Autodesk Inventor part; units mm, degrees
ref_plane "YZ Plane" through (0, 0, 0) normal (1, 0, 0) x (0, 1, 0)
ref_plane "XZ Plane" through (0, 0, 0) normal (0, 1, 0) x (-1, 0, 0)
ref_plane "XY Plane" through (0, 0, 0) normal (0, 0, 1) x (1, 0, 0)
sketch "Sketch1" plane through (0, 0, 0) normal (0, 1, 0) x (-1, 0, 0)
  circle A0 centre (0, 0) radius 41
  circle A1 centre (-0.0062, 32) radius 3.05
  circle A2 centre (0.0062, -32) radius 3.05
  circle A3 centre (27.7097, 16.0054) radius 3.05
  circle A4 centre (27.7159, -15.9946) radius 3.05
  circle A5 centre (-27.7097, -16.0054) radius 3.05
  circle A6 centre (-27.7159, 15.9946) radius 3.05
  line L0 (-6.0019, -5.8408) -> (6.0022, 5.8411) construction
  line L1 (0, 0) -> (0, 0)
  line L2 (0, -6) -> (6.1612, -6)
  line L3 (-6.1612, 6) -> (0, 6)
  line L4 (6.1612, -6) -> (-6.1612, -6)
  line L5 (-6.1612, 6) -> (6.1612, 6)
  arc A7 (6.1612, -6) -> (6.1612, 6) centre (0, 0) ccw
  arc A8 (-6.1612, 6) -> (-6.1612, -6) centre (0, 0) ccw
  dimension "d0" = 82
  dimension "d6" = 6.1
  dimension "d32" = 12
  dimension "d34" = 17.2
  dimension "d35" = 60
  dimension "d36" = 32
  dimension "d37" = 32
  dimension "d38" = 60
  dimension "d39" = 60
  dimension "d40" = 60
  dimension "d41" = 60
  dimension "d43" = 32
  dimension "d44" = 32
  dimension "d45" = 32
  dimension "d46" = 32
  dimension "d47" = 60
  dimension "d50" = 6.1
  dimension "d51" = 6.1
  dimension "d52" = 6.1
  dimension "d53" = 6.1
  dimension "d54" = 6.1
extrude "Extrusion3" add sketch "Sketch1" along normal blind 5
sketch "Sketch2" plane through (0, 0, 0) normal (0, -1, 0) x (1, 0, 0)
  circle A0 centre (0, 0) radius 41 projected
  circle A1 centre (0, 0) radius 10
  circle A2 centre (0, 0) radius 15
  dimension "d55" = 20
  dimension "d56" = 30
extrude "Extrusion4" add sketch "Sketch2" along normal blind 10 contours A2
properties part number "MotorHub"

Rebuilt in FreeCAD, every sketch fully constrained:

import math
import FreeCAD as App
import Part
import Sketcher
from FreeCAD import Vector
Q = App.Units.Quantity

doc = App.newDocument("Part")
body = doc.addObject("PartDesign::Body", "Body")

# Sketch on XZ plane
sketch1 = body.newObject("Sketcher::SketchObject", "Sketch")
sketch1.AttachmentSupport = (doc.getObject("XZ_Plane"), [""])
sketch1.MapMode = "FlatFace"
sketch1.addGeometry(Part.Circle(Vector(0, 0, 0), Vector(0, 0, 1), 41), False)
sketch1.addGeometry(Part.Circle(Vector(27.7, -16, 0), Vector(0, 0, 1), 3), False)
sketch1.addGeometry(Part.Circle(Vector(0, -32, 0), Vector(0, 0, 1), 3), False)
sketch1.addGeometry(Part.Circle(Vector(-27.7, -16, 0), Vector(0, 0, 1), 3), False)
sketch1.addGeometry(Part.Circle(Vector(27.7, 16, 0), Vector(0, 0, 1), 3), False)
sketch1.addGeometry(Part.Circle(Vector(0, 32, 0), Vector(0, 0, 1), 3), False)
sketch1.addGeometry(Part.LineSegment(Vector(-6.2, -6, 0), Vector(6.2, -6, 0)), False)
sketch1.addGeometry(Part.ArcOfCircle(Part.Circle(Vector(0, 0, 0), Vector(0, 0, 1), 8.6), math.radians(-44), math.radians(44)), False)
sketch1.addGeometry(Part.LineSegment(Vector(6.2, 6, 0), Vector(-6.2, 6, 0)), False)
sketch1.addGeometry(Part.ArcOfCircle(Part.Circle(Vector(0, 0, 0), Vector(0, 0, 1), 8.6), math.radians(136), math.radians(224)), False)
sketch1.addGeometry(Part.Circle(Vector(-27.7, 16, 0), Vector(0, 0, 1), 3), False)
sketch1.addConstraint(Sketcher.Constraint("Coincident", 6, 2, 7, 1))
sketch1.addConstraint(Sketcher.Constraint("Coincident", 7, 2, 8, 1))
sketch1.addConstraint(Sketcher.Constraint("Coincident", 8, 2, 9, 1))
sketch1.addConstraint(Sketcher.Constraint("Coincident", 9, 2, 6, 1))
sketch1.addConstraint(Sketcher.Constraint("Horizontal", 6))
sketch1.addConstraint(Sketcher.Constraint("Horizontal", 8))
sketch1.addConstraint(Sketcher.Constraint("Coincident", 0, 3, -1, 1))
sketch1.addConstraint(Sketcher.Constraint("Coincident", 7, 3, -1, 1))
sketch1.addConstraint(Sketcher.Constraint("Coincident", 9, 3, -1, 1))
sketch1.addConstraint(Sketcher.Constraint("Equal", 1, 2))
sketch1.addConstraint(Sketcher.Constraint("Equal", 2, 3))
sketch1.addConstraint(Sketcher.Constraint("Equal", 3, 4))
sketch1.addConstraint(Sketcher.Constraint("Equal", 4, 5))
sketch1.addConstraint(Sketcher.Constraint("Equal", 7, 9))
sketch1.addConstraint(Sketcher.Constraint("Equal", 5, 10))
sketch1.addConstraint(Sketcher.Constraint("Symmetric", 3, 3, 4, 3, -1, 1))
sketch1.addConstraint(Sketcher.Constraint("Symmetric", 2, 3, 5, 3, -1, 1))
sketch1.addConstraint(Sketcher.Constraint("Symmetric", 1, 3, 10, 3, -1, 1))
sketch1.addConstraint(Sketcher.Constraint("Vertical", 6, 2, 7, 2))
sketch1.addConstraint(Sketcher.Constraint("Diameter", 0, Q("82 mm")))
sketch1.addConstraint(Sketcher.Constraint("Diameter", 1, Q("6.1 mm")))
sketch1.addConstraint(Sketcher.Constraint("Radius", 7, Q("8.6 mm")))
sketch1.addConstraint(Sketcher.Constraint("DistanceY", 2, 3, -1, 1, Q("32 mm")))
sketch1.addConstraint(Sketcher.Constraint("DistanceY", 1, 3, 4, 3, Q("32 mm")))
sketch1.addConstraint(Sketcher.Constraint("DistanceY", 6, 2, 7, 2, Q("12 mm")))
sketch1.addConstraint(Sketcher.Constraint("DistanceX", 3, 3, -1, 1, Q("27.716 mm")))
sketch1.addConstraint(Sketcher.Constraint("DistanceX", 2, 3, 1, 3, Q("27.716 mm")))
sketch1.addConstraint(Sketcher.Constraint("DistanceX", 2, 3, 4, 3, Q("27.722 mm")))
sketch1.addConstraint(Sketcher.Constraint("DistanceY", 1, 3, -1, 1, Q("16.0054 mm")))
pad1 = body.newObject("PartDesign::Pad", "Pad")
pad1.Profile = sketch1
pad1.Length = 5
pad1.Reversed = True

# Sketch on XZ plane
sketch2 = body.newObject("Sketcher::SketchObject", "Sketch001")
sketch2.AttachmentSupport = (doc.getObject("XZ_Plane"), [""])
sketch2.MapMode = "FlatFace"
sketch2.addGeometry(Part.Circle(Vector(0, 0, 0), Vector(0, 0, 1), 15), False)
sketch2.addGeometry(Part.Circle(Vector(0, 0, 0), Vector(0, 0, 1), 10), False)
sketch2.addConstraint(Sketcher.Constraint("Coincident", 0, 3, -1, 1))
sketch2.addConstraint(Sketcher.Constraint("Coincident", 1, 3, -1, 1))
sketch2.addConstraint(Sketcher.Constraint("Diameter", 0, Q("30 mm")))
sketch2.addConstraint(Sketcher.Constraint("Diameter", 1, Q("20 mm")))
pad2 = body.newObject("PartDesign::Pad", "Pad001")
pad2.Profile = sketch2
pad2.Length = 10

doc.recompute()
